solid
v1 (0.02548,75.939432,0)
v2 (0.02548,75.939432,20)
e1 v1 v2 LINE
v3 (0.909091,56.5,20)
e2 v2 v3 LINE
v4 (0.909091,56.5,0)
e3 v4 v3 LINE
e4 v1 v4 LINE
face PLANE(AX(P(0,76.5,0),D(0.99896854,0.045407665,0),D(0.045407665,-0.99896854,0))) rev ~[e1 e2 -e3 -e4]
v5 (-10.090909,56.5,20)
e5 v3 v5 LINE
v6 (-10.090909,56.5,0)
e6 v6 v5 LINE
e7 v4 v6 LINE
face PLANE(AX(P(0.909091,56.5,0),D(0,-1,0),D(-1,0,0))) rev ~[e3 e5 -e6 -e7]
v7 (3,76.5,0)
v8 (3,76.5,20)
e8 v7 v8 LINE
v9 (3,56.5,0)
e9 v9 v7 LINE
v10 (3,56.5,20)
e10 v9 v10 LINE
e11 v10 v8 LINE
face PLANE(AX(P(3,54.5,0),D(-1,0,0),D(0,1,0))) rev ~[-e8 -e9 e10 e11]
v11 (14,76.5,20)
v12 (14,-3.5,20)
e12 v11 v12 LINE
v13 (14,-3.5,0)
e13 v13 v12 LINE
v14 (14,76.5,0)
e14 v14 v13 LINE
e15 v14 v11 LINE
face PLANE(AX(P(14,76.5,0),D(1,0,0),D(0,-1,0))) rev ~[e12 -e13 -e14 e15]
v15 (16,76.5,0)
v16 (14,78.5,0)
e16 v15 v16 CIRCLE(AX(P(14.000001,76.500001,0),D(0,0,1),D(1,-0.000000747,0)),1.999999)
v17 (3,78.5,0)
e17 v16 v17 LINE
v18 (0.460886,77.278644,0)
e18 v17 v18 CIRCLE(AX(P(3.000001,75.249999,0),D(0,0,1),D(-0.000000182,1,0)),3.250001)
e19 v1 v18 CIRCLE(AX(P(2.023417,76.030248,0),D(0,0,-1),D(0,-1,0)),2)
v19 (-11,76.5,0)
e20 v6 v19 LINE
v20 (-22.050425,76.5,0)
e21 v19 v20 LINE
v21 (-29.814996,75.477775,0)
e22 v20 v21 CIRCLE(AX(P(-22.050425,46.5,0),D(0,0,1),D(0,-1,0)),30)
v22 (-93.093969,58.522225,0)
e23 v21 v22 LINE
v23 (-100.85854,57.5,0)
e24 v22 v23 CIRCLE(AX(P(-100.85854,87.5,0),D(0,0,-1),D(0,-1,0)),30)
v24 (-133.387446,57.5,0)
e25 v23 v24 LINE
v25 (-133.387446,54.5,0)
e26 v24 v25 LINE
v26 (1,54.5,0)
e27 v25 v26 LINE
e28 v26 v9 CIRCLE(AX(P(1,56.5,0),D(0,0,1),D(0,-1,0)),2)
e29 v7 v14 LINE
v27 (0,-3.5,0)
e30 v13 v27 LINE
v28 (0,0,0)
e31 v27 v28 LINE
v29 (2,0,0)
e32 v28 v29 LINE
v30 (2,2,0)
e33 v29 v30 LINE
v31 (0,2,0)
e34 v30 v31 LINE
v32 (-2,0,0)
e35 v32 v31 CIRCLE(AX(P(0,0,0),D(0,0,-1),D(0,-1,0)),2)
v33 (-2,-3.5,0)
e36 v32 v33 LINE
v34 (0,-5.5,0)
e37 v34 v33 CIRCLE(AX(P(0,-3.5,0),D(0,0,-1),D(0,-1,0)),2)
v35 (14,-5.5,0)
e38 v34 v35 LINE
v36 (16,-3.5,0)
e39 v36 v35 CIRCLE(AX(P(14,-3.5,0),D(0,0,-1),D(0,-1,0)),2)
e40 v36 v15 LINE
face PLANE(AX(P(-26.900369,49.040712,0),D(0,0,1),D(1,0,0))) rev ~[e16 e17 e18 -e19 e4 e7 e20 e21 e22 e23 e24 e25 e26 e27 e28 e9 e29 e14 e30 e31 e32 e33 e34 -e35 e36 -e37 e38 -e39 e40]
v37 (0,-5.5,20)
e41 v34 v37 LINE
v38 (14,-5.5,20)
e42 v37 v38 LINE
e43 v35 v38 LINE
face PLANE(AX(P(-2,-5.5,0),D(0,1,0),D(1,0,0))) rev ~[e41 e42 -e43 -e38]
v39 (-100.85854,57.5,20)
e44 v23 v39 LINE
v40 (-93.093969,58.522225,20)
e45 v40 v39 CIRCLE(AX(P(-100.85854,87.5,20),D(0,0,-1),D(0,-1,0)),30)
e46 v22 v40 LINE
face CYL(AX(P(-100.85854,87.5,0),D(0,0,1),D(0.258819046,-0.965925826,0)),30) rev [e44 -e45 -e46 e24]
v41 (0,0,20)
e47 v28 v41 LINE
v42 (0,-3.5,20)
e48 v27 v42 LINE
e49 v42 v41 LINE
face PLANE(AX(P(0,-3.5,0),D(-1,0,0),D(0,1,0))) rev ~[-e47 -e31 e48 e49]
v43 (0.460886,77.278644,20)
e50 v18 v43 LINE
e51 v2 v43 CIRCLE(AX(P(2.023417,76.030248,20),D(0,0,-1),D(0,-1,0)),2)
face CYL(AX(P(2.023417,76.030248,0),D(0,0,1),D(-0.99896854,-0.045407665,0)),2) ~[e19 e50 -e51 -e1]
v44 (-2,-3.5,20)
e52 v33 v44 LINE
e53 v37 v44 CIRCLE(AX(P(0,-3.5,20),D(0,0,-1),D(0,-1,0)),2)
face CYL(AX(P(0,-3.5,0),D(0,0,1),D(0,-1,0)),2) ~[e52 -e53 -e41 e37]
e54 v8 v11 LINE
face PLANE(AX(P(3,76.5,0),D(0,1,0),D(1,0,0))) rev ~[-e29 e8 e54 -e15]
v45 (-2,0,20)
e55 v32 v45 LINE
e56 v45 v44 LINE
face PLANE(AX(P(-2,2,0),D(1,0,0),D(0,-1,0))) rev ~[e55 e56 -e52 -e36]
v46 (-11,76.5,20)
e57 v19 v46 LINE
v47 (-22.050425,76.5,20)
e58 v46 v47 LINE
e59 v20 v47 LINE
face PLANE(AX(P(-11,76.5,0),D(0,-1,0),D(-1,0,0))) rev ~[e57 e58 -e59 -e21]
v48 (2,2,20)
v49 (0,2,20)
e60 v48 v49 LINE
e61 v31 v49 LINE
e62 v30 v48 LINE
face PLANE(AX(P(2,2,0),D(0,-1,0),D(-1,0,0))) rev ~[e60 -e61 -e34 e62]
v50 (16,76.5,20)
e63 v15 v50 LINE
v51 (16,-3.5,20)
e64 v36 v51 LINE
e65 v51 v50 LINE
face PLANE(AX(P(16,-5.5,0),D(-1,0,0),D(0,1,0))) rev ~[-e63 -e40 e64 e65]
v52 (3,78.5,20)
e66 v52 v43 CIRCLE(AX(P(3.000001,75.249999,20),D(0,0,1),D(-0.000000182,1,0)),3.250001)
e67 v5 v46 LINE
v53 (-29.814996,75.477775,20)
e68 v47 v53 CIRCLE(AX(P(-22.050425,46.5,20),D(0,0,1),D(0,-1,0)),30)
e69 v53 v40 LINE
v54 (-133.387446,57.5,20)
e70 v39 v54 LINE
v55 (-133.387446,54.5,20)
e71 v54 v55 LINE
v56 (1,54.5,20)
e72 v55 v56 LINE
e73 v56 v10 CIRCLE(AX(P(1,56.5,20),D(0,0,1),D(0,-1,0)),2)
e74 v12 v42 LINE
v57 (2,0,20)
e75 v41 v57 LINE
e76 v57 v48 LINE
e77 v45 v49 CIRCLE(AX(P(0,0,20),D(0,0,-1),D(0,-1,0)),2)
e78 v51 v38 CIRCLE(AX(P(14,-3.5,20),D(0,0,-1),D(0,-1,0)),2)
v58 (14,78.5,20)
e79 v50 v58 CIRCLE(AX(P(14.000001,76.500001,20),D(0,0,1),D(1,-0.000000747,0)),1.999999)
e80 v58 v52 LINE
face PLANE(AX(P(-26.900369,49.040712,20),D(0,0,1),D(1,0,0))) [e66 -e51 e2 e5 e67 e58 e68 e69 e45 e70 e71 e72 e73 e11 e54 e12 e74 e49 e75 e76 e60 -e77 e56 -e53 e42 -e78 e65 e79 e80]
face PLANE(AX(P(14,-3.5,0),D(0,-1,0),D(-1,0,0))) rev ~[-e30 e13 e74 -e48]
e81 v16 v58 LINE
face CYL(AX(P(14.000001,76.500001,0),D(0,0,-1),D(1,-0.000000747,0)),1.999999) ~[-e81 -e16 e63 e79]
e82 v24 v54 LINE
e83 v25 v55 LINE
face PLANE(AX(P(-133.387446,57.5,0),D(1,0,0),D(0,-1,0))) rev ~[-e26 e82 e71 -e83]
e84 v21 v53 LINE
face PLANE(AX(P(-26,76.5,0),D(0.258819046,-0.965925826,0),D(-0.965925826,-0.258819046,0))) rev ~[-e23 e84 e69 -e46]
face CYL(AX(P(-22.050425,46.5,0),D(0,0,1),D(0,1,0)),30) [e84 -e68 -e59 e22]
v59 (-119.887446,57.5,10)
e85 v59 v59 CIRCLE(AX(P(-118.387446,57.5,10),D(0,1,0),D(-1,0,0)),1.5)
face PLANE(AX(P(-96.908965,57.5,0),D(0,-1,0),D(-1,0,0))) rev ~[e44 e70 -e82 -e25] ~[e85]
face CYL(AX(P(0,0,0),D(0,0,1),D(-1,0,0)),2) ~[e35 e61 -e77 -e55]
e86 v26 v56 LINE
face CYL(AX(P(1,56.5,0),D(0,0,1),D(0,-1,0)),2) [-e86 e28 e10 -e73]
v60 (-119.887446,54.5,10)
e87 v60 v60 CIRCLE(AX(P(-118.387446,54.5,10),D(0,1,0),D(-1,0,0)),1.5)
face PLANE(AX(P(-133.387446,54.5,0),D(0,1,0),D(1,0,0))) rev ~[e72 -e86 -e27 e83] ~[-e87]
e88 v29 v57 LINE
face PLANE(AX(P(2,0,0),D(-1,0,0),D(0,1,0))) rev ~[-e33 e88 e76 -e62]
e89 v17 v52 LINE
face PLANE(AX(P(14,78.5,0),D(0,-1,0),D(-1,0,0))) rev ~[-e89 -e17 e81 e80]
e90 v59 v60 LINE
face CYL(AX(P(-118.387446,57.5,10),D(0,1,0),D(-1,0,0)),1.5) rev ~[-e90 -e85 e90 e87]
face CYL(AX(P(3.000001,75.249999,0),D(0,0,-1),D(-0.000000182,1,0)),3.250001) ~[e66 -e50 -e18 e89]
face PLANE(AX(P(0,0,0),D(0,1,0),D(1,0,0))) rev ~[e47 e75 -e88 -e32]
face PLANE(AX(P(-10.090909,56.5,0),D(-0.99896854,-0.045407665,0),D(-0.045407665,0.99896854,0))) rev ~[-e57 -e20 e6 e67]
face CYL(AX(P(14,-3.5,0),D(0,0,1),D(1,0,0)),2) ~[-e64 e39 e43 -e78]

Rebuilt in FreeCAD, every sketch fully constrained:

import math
import FreeCAD as App
import Part
import Sketcher
from FreeCAD import Vector
Q = App.Units.Quantity


def edges_at(feature, points):
    """Names of the edges that pass closest to the given points."""
    edges = feature.Shape.Edges
    near = lambda p: min(range(len(edges)), key=lambda i: edges[i].distToShape(Part.Vertex(*p))[0])
    return sorted({f"Edge{near(p) + 1}" for p in points})

doc = App.newDocument("Part")
body = doc.addObject("PartDesign::Body", "Body")

sketch1 = body.newObject("Sketcher::SketchObject", "Sketch")
sketch1.AttachmentSupport = (doc.getObject("XY_Plane"), [""])
sketch1.MapMode = "FlatFace"
sketch1.addGeometry([
    Part.LineSegment(Vector(0, -3.5, 0), Vector(0, 0, 0)),
    Part.LineSegment(Vector(0, 0, 0), Vector(2, 0, 0)),
    Part.LineSegment(Vector(2, 0, 0), Vector(2, 2, 0)),
    Part.LineSegment(Vector(2, 2, 0), Vector(-2, 2, 0)),
    Part.LineSegment(Vector(-2, 2, 0), Vector(-2, -5.5, 0)),
    Part.LineSegment(Vector(-2, -5.5, 0), Vector(16, -5.5, 0)),
    Part.LineSegment(Vector(16, -5.5, 0), Vector(16, 76.5, 0)),
    Part.ArcOfCircle(Part.Circle(Vector(14.000001, 76.500001, 0), Vector(0, 0, 1), 1.999999), math.radians(-0.000043), math.radians(90.000043)),
    Part.LineSegment(Vector(14, 78.5, 0), Vector(3, 78.5, 0)),
    Part.ArcOfCircle(Part.Circle(Vector(3.000001, 75.249999, 0), Vector(0, 0, 1), 3.250001), math.radians(90.00001), math.radians(157.380125)),
    Part.LineSegment(Vector(0, 76.5, 0), Vector(0.909091, 56.5, 0)),
    Part.LineSegment(Vector(0.909091, 56.5, 0), Vector(-10.090909, 56.5, 0)),
    Part.LineSegment(Vector(-10.090909, 56.5, 0), Vector(-11, 76.5, 0)),
    Part.LineSegment(Vector(-11, 76.5, 0), Vector(-26, 76.5, 0)),
    Part.LineSegment(Vector(-26, 76.5, 0), Vector(-96.908965, 57.5, 0)),
    Part.LineSegment(Vector(-96.908965, 57.5, 0), Vector(-133.387446, 57.5, 0)),
    Part.LineSegment(Vector(-133.387446, 57.5, 0), Vector(-133.387446, 54.5, 0)),
    Part.LineSegment(Vector(-133.387446, 54.5, 0), Vector(3, 54.5, 0)),
    Part.LineSegment(Vector(3, 54.5, 0), Vector(3, 76.5, 0)),
    Part.LineSegment(Vector(3, 76.5, 0), Vector(14, 76.5, 0)),
    Part.LineSegment(Vector(14, 76.5, 0), Vector(14, -3.5, 0)),
    Part.LineSegment(Vector(14, -3.5, 0), Vector(0, -3.5, 0)),
], False)
sketch1.addConstraint([
    Sketcher.Constraint("Coincident", 0, 2, 1, 1),
    Sketcher.Constraint("Coincident", 1, 2, 2, 1),
    Sketcher.Constraint("Coincident", 2, 2, 3, 1),
    Sketcher.Constraint("Coincident", 3, 2, 4, 1),
    Sketcher.Constraint("Coincident", 4, 2, 5, 1),
    Sketcher.Constraint("Coincident", 5, 2, 6, 1),
    Sketcher.Constraint("Tangent", 6, 2, 7, 1),
    Sketcher.Constraint("Tangent", 7, 2, 8, 1),
    Sketcher.Constraint("Tangent", 8, 2, 9, 1),
    Sketcher.Constraint("Coincident", 9, 2, 10, 1),
    Sketcher.Constraint("Coincident", 10, 2, 11, 1),
    Sketcher.Constraint("Coincident", 11, 2, 12, 1),
    Sketcher.Constraint("Coincident", 12, 2, 13, 1),
    Sketcher.Constraint("Coincident", 13, 2, 14, 1),
    Sketcher.Constraint("Coincident", 14, 2, 15, 1),
    Sketcher.Constraint("Coincident", 15, 2, 16, 1),
    Sketcher.Constraint("Coincident", 16, 2, 17, 1),
    Sketcher.Constraint("Coincident", 17, 2, 18, 1),
    Sketcher.Constraint("Coincident", 18, 2, 19, 1),
    Sketcher.Constraint("Coincident", 19, 2, 20, 1),
    Sketcher.Constraint("Coincident", 20, 2, 21, 1),
    Sketcher.Constraint("Coincident", 21, 2, 0, 1),
    Sketcher.Constraint("Vertical", 0),
    Sketcher.Constraint("Horizontal", 1),
    Sketcher.Constraint("Vertical", 2),
    Sketcher.Constraint("Horizontal", 3),
    Sketcher.Constraint("Vertical", 4),
    Sketcher.Constraint("Horizontal", 5),
    Sketcher.Constraint("Vertical", 6),
    Sketcher.Constraint("Horizontal", 8),
    Sketcher.Constraint("Horizontal", 11),
    Sketcher.Constraint("Horizontal", 13),
    Sketcher.Constraint("Horizontal", 15),
    Sketcher.Constraint("Vertical", 16),
    Sketcher.Constraint("Horizontal", 17),
    Sketcher.Constraint("Vertical", 18),
    Sketcher.Constraint("Horizontal", 19),
    Sketcher.Constraint("Vertical", 20),
    Sketcher.Constraint("Horizontal", 21),
    Sketcher.Constraint("Coincident", 0, 2, -1, 1),
    Sketcher.Constraint("Coincident", 19, 2, 7, 3),
    Sketcher.Constraint("PointOnObject", 9, 2, -2),
    Sketcher.Constraint("Parallel", 10, 12),
    Sketcher.Constraint("Horizontal", 6, 2, 9, 2),
    Sketcher.Constraint("Horizontal", 9, 2, 12, 2),
    Sketcher.Constraint("Vertical", 8, 2, 17, 2),
    Sketcher.Constraint("Equal", 8, 11),
    Sketcher.Constraint("Equal", 1, 2),
    Sketcher.Constraint("Radius", 7, Q("1.999999 mm")),
    Sketcher.Constraint("DistanceX", 1, 1, 1, 2, Q("2 mm")),
    Sketcher.Constraint("DistanceX", 3, 2, 3, 1, Q("4 mm")),
    Sketcher.Constraint("DistanceX", 5, 1, 5, 2, Q("18 mm")),
    Sketcher.Constraint("DistanceX", 8, 2, 8, 1, Q("11 mm")),
    Sketcher.Constraint("DistanceX", 13, 2, 13, 1, Q("15 mm")),
    Sketcher.Constraint("DistanceY", 6, 1, 6, 2, Q("82 mm")),
    Sketcher.Constraint("DistanceY", 16, 2, 16, 1, Q("3 mm")),
    Sketcher.Constraint("DistanceY", 18, 1, 18, 2, Q("22 mm")),
    Sketcher.Constraint("DistanceY", 20, 2, 20, 1, Q("80 mm")),
    Sketcher.Constraint("Angle", 14, Q("-165 deg")),
    Sketcher.Constraint("DistanceY", 0, 1, 0, 2, Q("3.5 mm")),
    Sketcher.Constraint("DistanceY", 10, 2, 9, 2, Q("20 mm")),
    Sketcher.Constraint("DistanceX", 15, 2, 15, 1, Q("36.478481 mm")),
    Sketcher.Constraint("Distance", 10, Q("20.020651 mm")),
])
pad1 = body.newObject("PartDesign::Pad", "Pad")
pad1.Profile = sketch1
pad1.Length = 20
doc.recompute()

fillet = body.newObject("PartDesign::Fillet", "Fillet")
fillet.Base = (pad1, edges_at(pad1, [(-96.909, 57.5, 10), (-26, 76.5, 10)]))
fillet.Radius = 30
doc.recompute()

fillet2 = body.newObject("PartDesign::Fillet", "Fillet001")
fillet2.Base = (fillet, edges_at(fillet, [(0, 76.5, 10)]))
fillet2.Radius = 2
doc.recompute()

fillet3 = body.newObject("PartDesign::Fillet", "Fillet002")
fillet3.Base = (fillet2, edges_at(fillet2, [
    (16, -5.5, 10),
    (-2, -5.5, 10),
    (-2, 2, 10),
    (3, 54.5, 10),
]))
fillet3.Radius = 2

sketch2 = body.newObject("Sketcher::SketchObject", "Sketch001")
sketch2.AttachmentSupport = (doc.getObject("XZ_Plane"), [""])
sketch2.MapMode = "FlatFace"
sketch2.AttachmentOffset = App.Placement(Vector(0, 0, -57.5), App.Rotation())
sketch2.addGeometry(Part.Circle(Vector(-118.387446, 10, 0), Vector(0, 0, 1), 1.5), False)
sketch2.addConstraint([
    Sketcher.Constraint("Diameter", 0, Q("3 mm")),
    Sketcher.Constraint("DistanceY", -1, 1, 0, 3, Q("10 mm")),
    Sketcher.Constraint("DistanceX", 0, 3, -1, 1, Q("118.387446 mm")),
])
pocket1 = body.newObject("PartDesign::Pocket", "Pocket")
pocket1.Profile = sketch2
pocket1.Length = 25
pocket1.Reversed = True

doc.recompute()
